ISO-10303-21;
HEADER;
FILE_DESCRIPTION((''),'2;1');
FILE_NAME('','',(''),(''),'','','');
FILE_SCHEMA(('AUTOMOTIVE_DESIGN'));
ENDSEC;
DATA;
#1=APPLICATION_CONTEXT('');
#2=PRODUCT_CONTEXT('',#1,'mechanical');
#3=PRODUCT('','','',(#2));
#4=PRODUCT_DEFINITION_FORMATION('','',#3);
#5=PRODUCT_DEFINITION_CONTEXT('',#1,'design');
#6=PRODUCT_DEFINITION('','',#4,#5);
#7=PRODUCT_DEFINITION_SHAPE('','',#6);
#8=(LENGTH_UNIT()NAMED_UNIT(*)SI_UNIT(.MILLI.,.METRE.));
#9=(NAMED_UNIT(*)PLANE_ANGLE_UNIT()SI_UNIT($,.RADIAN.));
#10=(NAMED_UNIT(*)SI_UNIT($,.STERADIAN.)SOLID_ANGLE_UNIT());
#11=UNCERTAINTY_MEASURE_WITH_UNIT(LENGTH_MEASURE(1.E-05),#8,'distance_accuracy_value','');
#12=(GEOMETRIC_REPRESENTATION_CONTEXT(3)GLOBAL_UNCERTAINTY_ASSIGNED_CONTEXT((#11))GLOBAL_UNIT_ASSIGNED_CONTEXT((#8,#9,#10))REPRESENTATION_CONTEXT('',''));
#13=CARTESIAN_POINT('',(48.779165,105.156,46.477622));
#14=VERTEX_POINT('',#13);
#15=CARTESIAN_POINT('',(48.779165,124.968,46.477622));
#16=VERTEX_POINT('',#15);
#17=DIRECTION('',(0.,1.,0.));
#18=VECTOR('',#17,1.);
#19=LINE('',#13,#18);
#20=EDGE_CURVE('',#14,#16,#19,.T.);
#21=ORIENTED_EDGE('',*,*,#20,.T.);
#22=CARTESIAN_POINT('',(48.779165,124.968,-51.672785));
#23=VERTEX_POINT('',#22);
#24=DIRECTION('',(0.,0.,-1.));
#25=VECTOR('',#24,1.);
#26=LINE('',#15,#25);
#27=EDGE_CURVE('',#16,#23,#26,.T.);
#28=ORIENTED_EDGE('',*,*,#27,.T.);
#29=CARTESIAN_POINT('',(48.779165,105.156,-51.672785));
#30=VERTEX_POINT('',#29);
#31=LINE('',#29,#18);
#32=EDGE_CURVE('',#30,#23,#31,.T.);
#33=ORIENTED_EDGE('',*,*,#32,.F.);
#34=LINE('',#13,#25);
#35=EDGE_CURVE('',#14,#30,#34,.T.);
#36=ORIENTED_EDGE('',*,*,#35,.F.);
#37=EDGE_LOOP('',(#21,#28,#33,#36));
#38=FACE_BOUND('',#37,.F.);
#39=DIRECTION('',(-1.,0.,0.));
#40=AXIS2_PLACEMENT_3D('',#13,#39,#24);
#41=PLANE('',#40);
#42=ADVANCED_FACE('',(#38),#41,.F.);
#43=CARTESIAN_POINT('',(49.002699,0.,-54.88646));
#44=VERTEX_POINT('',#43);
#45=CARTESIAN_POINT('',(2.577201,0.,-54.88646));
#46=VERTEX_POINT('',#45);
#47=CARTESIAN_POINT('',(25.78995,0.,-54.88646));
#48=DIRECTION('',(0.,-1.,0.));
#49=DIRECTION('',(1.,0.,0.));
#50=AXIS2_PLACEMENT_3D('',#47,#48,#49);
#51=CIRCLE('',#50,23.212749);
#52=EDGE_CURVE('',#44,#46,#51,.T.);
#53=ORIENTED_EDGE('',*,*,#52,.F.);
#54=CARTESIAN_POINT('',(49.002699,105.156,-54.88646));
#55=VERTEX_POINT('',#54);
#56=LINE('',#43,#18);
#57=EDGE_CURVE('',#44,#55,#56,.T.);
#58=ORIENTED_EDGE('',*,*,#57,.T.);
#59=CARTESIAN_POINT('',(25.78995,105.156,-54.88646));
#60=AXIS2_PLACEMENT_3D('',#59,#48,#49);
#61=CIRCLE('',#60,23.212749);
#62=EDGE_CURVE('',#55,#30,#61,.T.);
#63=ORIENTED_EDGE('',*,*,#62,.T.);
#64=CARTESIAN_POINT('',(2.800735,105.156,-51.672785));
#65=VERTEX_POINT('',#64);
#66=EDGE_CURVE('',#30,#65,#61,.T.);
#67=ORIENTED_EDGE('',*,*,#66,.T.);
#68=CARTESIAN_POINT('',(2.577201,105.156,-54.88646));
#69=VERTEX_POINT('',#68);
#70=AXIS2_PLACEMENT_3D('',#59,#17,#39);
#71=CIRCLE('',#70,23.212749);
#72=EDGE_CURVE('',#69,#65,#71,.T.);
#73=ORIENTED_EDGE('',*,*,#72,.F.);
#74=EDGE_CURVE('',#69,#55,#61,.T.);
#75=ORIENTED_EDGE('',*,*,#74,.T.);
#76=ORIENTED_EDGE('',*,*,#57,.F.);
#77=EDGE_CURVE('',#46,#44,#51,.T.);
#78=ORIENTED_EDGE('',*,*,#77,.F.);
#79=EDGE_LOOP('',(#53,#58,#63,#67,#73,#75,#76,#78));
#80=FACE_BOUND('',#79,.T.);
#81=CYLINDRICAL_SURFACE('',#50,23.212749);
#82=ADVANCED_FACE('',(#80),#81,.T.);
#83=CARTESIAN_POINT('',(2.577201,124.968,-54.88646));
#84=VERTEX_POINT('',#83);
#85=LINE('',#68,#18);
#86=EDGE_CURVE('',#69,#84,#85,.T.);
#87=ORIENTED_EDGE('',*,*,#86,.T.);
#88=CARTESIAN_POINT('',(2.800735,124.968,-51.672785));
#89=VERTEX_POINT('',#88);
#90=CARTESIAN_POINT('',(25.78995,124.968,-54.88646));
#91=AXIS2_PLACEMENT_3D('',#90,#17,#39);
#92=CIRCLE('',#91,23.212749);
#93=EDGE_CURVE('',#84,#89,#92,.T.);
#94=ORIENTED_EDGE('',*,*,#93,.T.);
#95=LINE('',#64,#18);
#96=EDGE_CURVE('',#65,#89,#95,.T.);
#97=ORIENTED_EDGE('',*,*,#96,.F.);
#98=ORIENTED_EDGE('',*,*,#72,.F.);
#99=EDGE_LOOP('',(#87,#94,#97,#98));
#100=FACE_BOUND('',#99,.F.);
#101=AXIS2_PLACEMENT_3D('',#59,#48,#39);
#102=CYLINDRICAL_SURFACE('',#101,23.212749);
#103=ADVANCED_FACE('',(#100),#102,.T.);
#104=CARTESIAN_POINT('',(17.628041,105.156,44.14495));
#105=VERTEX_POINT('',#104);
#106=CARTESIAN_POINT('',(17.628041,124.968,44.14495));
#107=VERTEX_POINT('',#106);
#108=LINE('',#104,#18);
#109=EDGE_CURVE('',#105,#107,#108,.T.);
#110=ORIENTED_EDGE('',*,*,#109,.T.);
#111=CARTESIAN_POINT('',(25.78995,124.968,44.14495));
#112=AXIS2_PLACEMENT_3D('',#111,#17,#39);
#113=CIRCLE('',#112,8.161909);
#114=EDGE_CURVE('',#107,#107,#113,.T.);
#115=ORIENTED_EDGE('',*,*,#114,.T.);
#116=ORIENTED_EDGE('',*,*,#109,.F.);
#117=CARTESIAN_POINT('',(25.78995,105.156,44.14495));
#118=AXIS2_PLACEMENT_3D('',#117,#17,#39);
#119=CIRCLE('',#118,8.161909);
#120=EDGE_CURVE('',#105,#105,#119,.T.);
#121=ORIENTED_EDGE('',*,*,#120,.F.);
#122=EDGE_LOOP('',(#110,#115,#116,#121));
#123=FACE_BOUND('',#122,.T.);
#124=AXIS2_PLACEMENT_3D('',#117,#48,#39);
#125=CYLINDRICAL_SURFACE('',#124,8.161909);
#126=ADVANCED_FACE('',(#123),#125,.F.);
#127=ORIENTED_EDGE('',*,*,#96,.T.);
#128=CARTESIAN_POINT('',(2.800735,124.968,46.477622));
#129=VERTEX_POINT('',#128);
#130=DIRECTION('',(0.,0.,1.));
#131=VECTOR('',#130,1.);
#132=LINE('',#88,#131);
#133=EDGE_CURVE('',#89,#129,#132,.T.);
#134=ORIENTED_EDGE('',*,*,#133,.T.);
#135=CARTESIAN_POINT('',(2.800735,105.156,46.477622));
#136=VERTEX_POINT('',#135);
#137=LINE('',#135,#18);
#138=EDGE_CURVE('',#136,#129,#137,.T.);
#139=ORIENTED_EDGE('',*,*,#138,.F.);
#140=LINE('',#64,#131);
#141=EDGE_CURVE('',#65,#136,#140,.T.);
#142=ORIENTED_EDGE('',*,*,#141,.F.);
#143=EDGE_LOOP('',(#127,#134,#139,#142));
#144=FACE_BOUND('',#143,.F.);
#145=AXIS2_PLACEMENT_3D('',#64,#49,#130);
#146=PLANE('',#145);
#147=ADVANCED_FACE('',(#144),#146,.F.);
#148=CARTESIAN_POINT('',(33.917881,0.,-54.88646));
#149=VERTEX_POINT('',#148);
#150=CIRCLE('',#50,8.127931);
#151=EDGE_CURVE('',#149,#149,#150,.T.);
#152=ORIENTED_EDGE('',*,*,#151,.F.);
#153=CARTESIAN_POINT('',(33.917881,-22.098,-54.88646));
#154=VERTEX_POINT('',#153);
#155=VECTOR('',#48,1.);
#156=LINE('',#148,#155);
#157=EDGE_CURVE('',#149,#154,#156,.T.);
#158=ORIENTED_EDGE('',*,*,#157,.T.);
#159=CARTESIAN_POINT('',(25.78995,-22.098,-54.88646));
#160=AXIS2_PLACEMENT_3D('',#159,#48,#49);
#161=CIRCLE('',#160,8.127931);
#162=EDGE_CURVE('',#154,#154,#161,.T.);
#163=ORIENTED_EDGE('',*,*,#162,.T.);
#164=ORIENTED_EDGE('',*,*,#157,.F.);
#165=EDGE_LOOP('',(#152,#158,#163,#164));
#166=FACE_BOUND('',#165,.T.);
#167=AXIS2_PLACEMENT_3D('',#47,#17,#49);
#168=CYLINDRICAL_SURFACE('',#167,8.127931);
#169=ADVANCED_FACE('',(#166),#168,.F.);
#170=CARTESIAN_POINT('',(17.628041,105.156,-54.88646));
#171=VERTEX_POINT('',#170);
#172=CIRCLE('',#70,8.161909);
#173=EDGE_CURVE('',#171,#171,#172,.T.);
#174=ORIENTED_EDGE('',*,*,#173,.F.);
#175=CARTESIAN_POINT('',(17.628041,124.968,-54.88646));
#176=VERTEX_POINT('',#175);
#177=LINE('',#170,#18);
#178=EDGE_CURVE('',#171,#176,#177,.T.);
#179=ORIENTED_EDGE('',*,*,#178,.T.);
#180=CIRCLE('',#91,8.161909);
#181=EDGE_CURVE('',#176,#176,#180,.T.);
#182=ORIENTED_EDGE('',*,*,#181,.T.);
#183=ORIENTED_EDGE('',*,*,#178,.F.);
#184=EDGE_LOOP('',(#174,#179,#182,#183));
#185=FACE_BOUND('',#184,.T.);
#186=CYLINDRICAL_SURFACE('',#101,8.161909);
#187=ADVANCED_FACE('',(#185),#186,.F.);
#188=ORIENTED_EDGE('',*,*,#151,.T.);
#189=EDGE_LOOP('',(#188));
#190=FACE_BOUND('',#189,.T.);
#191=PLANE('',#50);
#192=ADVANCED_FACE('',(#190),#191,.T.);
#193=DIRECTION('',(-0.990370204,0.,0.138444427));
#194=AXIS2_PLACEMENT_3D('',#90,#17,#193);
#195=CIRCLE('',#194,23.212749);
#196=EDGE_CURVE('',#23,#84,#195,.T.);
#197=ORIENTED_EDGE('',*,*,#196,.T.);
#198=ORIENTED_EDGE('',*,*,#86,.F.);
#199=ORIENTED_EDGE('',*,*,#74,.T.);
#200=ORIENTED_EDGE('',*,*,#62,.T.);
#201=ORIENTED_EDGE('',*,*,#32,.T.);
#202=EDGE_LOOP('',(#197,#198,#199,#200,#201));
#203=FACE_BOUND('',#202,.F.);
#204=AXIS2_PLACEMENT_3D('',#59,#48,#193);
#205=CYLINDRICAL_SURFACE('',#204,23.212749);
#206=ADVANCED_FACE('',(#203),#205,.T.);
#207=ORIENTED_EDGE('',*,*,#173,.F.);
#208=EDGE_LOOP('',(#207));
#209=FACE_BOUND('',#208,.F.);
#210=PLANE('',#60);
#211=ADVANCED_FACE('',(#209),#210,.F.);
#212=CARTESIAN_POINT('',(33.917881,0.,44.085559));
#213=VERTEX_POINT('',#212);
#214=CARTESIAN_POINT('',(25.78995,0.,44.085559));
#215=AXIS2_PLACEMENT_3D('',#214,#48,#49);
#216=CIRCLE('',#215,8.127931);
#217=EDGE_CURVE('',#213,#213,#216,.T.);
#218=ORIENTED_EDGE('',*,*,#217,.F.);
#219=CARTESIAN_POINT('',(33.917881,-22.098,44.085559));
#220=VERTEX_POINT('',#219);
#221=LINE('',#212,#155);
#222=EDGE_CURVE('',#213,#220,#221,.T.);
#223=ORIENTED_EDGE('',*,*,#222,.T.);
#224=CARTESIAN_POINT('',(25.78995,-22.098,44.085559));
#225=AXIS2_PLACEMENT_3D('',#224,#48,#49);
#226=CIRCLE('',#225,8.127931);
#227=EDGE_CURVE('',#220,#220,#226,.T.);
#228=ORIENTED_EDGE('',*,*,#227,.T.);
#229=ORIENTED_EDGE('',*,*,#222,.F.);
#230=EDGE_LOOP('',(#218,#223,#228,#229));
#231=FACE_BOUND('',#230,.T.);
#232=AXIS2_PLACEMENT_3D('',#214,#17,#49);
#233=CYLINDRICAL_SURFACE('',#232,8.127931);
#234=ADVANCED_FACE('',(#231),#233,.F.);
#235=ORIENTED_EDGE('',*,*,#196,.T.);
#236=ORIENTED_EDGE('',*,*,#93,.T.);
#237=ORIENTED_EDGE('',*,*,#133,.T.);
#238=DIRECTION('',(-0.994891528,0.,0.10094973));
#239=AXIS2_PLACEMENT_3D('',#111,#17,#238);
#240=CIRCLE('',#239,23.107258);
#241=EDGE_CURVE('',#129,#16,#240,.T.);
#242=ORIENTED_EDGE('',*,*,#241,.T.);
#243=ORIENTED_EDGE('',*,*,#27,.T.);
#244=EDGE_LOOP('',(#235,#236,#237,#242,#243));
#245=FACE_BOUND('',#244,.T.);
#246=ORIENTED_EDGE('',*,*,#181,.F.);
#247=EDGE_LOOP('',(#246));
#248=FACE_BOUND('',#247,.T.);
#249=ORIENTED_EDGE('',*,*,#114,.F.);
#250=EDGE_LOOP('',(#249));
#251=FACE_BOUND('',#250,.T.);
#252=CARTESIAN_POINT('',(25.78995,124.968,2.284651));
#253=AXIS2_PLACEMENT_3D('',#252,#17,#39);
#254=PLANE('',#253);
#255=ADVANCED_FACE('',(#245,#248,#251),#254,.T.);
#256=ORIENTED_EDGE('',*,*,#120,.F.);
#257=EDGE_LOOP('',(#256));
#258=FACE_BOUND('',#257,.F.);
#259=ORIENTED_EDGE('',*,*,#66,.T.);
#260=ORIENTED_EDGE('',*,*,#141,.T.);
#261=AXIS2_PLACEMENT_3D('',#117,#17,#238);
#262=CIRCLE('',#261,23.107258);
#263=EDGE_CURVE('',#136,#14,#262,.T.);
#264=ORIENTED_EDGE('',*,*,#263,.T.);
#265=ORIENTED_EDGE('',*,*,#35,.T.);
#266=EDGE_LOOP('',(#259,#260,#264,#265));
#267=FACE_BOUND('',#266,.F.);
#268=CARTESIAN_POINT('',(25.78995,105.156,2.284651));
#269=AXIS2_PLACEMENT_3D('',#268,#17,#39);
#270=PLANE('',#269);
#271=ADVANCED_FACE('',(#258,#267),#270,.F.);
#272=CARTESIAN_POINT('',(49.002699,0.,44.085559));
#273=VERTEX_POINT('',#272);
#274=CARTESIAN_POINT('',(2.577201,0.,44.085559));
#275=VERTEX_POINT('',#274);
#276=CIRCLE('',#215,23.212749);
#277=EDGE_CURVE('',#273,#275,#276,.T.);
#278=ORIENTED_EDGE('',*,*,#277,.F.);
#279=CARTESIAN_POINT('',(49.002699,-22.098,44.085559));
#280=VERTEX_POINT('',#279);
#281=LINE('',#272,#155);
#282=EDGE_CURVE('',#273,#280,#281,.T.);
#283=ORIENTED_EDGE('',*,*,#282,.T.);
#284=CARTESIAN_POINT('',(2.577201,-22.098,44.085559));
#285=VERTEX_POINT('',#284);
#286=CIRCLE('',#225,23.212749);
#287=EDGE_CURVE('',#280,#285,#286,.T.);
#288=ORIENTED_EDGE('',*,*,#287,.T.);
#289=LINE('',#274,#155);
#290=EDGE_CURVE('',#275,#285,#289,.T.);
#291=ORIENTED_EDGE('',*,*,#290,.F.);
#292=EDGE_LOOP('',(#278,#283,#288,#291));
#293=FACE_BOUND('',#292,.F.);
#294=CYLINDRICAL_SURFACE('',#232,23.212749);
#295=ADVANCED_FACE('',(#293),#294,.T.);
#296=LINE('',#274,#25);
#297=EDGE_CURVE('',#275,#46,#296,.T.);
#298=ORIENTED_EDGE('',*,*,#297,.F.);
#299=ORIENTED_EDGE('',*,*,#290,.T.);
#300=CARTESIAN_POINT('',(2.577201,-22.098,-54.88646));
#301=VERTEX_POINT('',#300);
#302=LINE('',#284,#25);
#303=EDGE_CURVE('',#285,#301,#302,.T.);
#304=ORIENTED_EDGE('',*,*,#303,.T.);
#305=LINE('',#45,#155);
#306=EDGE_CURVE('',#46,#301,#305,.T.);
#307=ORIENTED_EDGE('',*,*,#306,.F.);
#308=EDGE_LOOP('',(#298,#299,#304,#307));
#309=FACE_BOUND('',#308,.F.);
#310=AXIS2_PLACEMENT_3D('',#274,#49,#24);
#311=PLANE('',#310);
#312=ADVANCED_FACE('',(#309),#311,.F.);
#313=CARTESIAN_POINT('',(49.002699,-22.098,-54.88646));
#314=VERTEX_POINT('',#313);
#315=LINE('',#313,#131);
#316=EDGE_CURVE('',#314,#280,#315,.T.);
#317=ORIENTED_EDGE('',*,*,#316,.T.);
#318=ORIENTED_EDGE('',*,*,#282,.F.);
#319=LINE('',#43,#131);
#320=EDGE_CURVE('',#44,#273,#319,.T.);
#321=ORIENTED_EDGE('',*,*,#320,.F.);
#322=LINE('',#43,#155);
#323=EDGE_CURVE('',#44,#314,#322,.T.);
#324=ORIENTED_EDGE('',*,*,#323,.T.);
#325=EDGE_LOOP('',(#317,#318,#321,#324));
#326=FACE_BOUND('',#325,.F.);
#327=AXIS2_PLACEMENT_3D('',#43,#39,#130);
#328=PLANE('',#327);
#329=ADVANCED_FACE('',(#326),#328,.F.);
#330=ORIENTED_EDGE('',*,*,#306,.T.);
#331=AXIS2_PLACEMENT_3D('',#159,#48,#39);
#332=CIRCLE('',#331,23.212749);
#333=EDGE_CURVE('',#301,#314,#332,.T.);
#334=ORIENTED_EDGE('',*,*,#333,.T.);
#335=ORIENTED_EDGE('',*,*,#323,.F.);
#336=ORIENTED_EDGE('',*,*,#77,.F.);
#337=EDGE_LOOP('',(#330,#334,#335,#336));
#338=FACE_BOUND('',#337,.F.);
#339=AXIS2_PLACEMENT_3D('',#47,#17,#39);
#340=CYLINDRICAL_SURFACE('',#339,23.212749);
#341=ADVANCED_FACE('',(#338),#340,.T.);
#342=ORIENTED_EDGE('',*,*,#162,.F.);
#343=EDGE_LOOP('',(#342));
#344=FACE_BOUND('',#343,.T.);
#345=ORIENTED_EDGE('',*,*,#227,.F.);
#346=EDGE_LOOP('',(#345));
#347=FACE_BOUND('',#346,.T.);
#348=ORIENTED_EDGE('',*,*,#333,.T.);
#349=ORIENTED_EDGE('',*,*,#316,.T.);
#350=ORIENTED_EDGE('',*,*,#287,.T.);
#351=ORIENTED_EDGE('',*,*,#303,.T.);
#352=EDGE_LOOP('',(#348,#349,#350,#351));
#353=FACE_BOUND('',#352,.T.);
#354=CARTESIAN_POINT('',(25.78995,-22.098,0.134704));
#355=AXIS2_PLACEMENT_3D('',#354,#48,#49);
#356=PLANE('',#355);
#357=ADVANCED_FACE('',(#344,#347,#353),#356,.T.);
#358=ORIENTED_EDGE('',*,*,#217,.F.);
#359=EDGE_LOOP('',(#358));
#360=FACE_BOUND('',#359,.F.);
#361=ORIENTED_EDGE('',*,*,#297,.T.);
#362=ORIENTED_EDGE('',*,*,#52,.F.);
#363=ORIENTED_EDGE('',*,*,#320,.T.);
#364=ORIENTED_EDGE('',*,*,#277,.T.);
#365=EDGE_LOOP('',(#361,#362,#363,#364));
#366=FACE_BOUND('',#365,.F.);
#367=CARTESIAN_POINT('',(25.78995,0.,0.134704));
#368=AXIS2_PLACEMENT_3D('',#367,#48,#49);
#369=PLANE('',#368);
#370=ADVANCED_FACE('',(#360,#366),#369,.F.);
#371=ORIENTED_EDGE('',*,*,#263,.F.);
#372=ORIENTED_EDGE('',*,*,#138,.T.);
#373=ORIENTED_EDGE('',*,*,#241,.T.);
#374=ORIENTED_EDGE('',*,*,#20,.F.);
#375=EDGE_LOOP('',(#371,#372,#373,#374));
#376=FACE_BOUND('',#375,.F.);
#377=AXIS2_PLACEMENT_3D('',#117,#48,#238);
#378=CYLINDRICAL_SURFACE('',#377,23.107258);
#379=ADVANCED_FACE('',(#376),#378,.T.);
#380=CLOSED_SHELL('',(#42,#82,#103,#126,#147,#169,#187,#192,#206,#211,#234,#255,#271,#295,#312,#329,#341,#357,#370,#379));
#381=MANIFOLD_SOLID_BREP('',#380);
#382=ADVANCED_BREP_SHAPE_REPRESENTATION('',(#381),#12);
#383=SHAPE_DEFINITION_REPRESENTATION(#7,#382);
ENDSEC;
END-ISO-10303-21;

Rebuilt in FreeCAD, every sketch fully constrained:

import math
import FreeCAD as App
import Part
import Sketcher
Q = App.Units.Quantity

doc = App.newDocument("Part")
body = doc.addObject("PartDesign::Body", "Body")

# Sketch on XZ plane
sketch1 = doc.addObject("Sketcher::SketchObject", "Sketch")
body.addObject(sketch1)
sketch1.AttachmentSupport = (doc.XZ_Plane, [""])
sketch1.MapMode = "FlatFace"
sketch1.addGeometry(Part.Circle(App.Vector(25.78995, -54.88646, 0), App.Vector(0, 0, 1), 23.212749), False)
sketch1.addConstraint(Sketcher.Constraint("Diameter", 0, Q("46.425498 mm")))
sketch1.addConstraint(Sketcher.Constraint("DistanceX", -1, 1, 0, 3, Q("25.78995 mm")))
sketch1.addConstraint(Sketcher.Constraint("DistanceY", 0, 3, -1, 1, Q("54.88646 mm")))
pad1 = doc.addObject("PartDesign::Pad", "Pad")
body.addObject(pad1)
pad1.Profile = sketch1
pad1.Length = Q("4.14 in")
pad1.Reversed = True

# Sketch on XZ plane
sketch2 = doc.addObject("Sketcher::SketchObject", "Sketch001")
body.addObject(sketch2)
sketch2.AttachmentSupport = (doc.XZ_Plane, [""])
sketch2.MapMode = "FlatFace"
sketch2.addGeometry(Part.LineSegment(App.Vector(2.577201, 44.085559, 0), App.Vector(2.577201, -54.88646, 0)), False)
sketch2.addGeometry(Part.ArcOfCircle(Part.Circle(App.Vector(25.78995, -54.88646, 0), App.Vector(0, 0, 1), 23.212749), math.radians(180), math.radians(360)), False)
sketch2.addGeometry(Part.LineSegment(App.Vector(49.002699, -54.88646, 0), App.Vector(49.002699, 44.085559, 0)), False)
sketch2.addGeometry(Part.ArcOfCircle(Part.Circle(App.Vector(25.78995, 44.085559, 0), App.Vector(0, 0, 1), 23.212749), math.radians(0), math.radians(180)), False)
sketch2.addGeometry(Part.Circle(App.Vector(25.78995, -54.88646, 0), App.Vector(0, 0, 1), 8.127931), False)
sketch2.addGeometry(Part.Circle(App.Vector(25.78995, 44.085559, 0), App.Vector(0, 0, 1), 8.127931), False)
sketch2.addConstraint(Sketcher.Constraint("Tangent", 0, 2, 1, 1))
sketch2.addConstraint(Sketcher.Constraint("Tangent", 1, 2, 2, 1))
sketch2.addConstraint(Sketcher.Constraint("Tangent", 2, 2, 3, 1))
sketch2.addConstraint(Sketcher.Constraint("Tangent", 3, 2, 0, 1))
sketch2.addConstraint(Sketcher.Constraint("Vertical", 0))
sketch2.addConstraint(Sketcher.Constraint("Vertical", 2))
sketch2.addConstraint(Sketcher.Constraint("Coincident", 4, 3, 1, 3))
sketch2.addConstraint(Sketcher.Constraint("Coincident", 5, 3, 3, 3))
sketch2.addConstraint(Sketcher.Constraint("Equal", 4, 5))
sketch2.addConstraint(Sketcher.Constraint("Radius", 1, Q("23.212749 mm")))
sketch2.addConstraint(Sketcher.Constraint("Diameter", 4, Q("16.255863 mm")))
sketch2.addConstraint(Sketcher.Constraint("DistanceY", 0, 2, 0, 1, Q("98.972019 mm")))
sketch2.addConstraint(Sketcher.Constraint("DistanceX", -1, 1, 0, 2, Q("2.577201 mm")))
sketch2.addConstraint(Sketcher.Constraint("DistanceY", 1, 3, -1, 1, Q("54.88646 mm")))
pad2 = doc.addObject("PartDesign::Pad", "Pad001")
body.addObject(pad2)
pad2.Profile = sketch2
pad2.Length = Q("0.87 in")

# Sketch on XZ plane
sketch3 = doc.addObject("Sketcher::SketchObject", "Sketch002")
body.addObject(sketch3)
sketch3.AttachmentSupport = (doc.XZ_Plane, [""])
sketch3.MapMode = "FlatFace"
sketch3.AttachmentOffset = App.Placement(App.Vector(0, 0, -4.14 * 25.4), App.Rotation())
sketch3.addGeometry(Part.LineSegment(App.Vector(48.779165, 46.477622, 0), App.Vector(48.779165, -51.672785, 0)), False)
sketch3.addGeometry(Part.ArcOfCircle(Part.Circle(App.Vector(25.78995, -54.88646, 0), App.Vector(0, 0, 1), 23.212749), math.radians(180), math.radians(367.957842)), False)
sketch3.addGeometry(Part.ArcOfCircle(Part.Circle(App.Vector(25.78995, -54.88646, 0), App.Vector(0, 0, 1), 23.212749), math.radians(172.042158), math.radians(180)), False)
sketch3.addGeometry(Part.LineSegment(App.Vector(2.800735, -51.672785, 0), App.Vector(2.800735, 46.477622, 0)), False)
sketch3.addGeometry(Part.ArcOfCircle(Part.Circle(App.Vector(25.78995, 44.14495, 0), App.Vector(0, 0, 1), 23.107258), math.radians(5.793863), math.radians(174.206137)), False)
sketch3.addGeometry(Part.Circle(App.Vector(25.78995, -54.88646, 0), App.Vector(0, 0, 1), 8.161909), False)
sketch3.addGeometry(Part.Circle(App.Vector(25.78995, 44.14495, 0), App.Vector(0, 0, 1), 8.161909), False)
sketch3.addConstraint(Sketcher.Constraint("Coincident", 0, 2, 1, 2))
sketch3.addConstraint(Sketcher.Constraint("Tangent", 1, 1, 2, 2))
sketch3.addConstraint(Sketcher.Constraint("Coincident", 2, 1, 3, 1))
sketch3.addConstraint(Sketcher.Constraint("Coincident", 3, 2, 4, 2))
sketch3.addConstraint(Sketcher.Constraint("Coincident", 4, 1, 0, 1))
sketch3.addConstraint(Sketcher.Constraint("Vertical", 0))
sketch3.addConstraint(Sketcher.Constraint("Vertical", 3))
sketch3.addConstraint(Sketcher.Constraint("Coincident", 5, 3, 1, 3))
sketch3.addConstraint(Sketcher.Constraint("Coincident", 6, 3, 4, 3))
sketch3.addConstraint(Sketcher.Constraint("Equal", 1, 2))
sketch3.addConstraint(Sketcher.Constraint("Equal", 5, 6))
sketch3.addConstraint(Sketcher.Constraint("Horizontal", 5, 3, 1, 1))
sketch3.addConstraint(Sketcher.Constraint("Horizontal", 0, 2, 2, 1))
sketch3.addConstraint(Sketcher.Constraint("Horizontal", 3, 2, 4, 1))
sketch3.addConstraint(Sketcher.Constraint("Radius", 1, Q("23.212749 mm")))
sketch3.addConstraint(Sketcher.Constraint("Diameter", 5, Q("16.323817 mm")))
sketch3.addConstraint(Sketcher.Constraint("Radius", 4, Q("23.107258 mm")))
sketch3.addConstraint(Sketcher.Constraint("DistanceX", -1, 1, 1, 1, Q("2.577201 mm")))
sketch3.addConstraint(Sketcher.Constraint("DistanceY", 0, 2, 0, 1, Q("98.150406 mm")))
sketch3.addConstraint(Sketcher.Constraint("DistanceY", 1, 3, -1, 1, Q("54.88646 mm")))
sketch3.addConstraint(Sketcher.Constraint("DistanceY", -1, 1, 4, 3, Q("44.14495 mm")))
pad3 = doc.addObject("PartDesign::Pad", "Pad002")
body.addObject(pad3)
pad3.Profile = sketch3
pad3.Length = Q("0.78 in")
pad3.Reversed = True

doc.recompute()
